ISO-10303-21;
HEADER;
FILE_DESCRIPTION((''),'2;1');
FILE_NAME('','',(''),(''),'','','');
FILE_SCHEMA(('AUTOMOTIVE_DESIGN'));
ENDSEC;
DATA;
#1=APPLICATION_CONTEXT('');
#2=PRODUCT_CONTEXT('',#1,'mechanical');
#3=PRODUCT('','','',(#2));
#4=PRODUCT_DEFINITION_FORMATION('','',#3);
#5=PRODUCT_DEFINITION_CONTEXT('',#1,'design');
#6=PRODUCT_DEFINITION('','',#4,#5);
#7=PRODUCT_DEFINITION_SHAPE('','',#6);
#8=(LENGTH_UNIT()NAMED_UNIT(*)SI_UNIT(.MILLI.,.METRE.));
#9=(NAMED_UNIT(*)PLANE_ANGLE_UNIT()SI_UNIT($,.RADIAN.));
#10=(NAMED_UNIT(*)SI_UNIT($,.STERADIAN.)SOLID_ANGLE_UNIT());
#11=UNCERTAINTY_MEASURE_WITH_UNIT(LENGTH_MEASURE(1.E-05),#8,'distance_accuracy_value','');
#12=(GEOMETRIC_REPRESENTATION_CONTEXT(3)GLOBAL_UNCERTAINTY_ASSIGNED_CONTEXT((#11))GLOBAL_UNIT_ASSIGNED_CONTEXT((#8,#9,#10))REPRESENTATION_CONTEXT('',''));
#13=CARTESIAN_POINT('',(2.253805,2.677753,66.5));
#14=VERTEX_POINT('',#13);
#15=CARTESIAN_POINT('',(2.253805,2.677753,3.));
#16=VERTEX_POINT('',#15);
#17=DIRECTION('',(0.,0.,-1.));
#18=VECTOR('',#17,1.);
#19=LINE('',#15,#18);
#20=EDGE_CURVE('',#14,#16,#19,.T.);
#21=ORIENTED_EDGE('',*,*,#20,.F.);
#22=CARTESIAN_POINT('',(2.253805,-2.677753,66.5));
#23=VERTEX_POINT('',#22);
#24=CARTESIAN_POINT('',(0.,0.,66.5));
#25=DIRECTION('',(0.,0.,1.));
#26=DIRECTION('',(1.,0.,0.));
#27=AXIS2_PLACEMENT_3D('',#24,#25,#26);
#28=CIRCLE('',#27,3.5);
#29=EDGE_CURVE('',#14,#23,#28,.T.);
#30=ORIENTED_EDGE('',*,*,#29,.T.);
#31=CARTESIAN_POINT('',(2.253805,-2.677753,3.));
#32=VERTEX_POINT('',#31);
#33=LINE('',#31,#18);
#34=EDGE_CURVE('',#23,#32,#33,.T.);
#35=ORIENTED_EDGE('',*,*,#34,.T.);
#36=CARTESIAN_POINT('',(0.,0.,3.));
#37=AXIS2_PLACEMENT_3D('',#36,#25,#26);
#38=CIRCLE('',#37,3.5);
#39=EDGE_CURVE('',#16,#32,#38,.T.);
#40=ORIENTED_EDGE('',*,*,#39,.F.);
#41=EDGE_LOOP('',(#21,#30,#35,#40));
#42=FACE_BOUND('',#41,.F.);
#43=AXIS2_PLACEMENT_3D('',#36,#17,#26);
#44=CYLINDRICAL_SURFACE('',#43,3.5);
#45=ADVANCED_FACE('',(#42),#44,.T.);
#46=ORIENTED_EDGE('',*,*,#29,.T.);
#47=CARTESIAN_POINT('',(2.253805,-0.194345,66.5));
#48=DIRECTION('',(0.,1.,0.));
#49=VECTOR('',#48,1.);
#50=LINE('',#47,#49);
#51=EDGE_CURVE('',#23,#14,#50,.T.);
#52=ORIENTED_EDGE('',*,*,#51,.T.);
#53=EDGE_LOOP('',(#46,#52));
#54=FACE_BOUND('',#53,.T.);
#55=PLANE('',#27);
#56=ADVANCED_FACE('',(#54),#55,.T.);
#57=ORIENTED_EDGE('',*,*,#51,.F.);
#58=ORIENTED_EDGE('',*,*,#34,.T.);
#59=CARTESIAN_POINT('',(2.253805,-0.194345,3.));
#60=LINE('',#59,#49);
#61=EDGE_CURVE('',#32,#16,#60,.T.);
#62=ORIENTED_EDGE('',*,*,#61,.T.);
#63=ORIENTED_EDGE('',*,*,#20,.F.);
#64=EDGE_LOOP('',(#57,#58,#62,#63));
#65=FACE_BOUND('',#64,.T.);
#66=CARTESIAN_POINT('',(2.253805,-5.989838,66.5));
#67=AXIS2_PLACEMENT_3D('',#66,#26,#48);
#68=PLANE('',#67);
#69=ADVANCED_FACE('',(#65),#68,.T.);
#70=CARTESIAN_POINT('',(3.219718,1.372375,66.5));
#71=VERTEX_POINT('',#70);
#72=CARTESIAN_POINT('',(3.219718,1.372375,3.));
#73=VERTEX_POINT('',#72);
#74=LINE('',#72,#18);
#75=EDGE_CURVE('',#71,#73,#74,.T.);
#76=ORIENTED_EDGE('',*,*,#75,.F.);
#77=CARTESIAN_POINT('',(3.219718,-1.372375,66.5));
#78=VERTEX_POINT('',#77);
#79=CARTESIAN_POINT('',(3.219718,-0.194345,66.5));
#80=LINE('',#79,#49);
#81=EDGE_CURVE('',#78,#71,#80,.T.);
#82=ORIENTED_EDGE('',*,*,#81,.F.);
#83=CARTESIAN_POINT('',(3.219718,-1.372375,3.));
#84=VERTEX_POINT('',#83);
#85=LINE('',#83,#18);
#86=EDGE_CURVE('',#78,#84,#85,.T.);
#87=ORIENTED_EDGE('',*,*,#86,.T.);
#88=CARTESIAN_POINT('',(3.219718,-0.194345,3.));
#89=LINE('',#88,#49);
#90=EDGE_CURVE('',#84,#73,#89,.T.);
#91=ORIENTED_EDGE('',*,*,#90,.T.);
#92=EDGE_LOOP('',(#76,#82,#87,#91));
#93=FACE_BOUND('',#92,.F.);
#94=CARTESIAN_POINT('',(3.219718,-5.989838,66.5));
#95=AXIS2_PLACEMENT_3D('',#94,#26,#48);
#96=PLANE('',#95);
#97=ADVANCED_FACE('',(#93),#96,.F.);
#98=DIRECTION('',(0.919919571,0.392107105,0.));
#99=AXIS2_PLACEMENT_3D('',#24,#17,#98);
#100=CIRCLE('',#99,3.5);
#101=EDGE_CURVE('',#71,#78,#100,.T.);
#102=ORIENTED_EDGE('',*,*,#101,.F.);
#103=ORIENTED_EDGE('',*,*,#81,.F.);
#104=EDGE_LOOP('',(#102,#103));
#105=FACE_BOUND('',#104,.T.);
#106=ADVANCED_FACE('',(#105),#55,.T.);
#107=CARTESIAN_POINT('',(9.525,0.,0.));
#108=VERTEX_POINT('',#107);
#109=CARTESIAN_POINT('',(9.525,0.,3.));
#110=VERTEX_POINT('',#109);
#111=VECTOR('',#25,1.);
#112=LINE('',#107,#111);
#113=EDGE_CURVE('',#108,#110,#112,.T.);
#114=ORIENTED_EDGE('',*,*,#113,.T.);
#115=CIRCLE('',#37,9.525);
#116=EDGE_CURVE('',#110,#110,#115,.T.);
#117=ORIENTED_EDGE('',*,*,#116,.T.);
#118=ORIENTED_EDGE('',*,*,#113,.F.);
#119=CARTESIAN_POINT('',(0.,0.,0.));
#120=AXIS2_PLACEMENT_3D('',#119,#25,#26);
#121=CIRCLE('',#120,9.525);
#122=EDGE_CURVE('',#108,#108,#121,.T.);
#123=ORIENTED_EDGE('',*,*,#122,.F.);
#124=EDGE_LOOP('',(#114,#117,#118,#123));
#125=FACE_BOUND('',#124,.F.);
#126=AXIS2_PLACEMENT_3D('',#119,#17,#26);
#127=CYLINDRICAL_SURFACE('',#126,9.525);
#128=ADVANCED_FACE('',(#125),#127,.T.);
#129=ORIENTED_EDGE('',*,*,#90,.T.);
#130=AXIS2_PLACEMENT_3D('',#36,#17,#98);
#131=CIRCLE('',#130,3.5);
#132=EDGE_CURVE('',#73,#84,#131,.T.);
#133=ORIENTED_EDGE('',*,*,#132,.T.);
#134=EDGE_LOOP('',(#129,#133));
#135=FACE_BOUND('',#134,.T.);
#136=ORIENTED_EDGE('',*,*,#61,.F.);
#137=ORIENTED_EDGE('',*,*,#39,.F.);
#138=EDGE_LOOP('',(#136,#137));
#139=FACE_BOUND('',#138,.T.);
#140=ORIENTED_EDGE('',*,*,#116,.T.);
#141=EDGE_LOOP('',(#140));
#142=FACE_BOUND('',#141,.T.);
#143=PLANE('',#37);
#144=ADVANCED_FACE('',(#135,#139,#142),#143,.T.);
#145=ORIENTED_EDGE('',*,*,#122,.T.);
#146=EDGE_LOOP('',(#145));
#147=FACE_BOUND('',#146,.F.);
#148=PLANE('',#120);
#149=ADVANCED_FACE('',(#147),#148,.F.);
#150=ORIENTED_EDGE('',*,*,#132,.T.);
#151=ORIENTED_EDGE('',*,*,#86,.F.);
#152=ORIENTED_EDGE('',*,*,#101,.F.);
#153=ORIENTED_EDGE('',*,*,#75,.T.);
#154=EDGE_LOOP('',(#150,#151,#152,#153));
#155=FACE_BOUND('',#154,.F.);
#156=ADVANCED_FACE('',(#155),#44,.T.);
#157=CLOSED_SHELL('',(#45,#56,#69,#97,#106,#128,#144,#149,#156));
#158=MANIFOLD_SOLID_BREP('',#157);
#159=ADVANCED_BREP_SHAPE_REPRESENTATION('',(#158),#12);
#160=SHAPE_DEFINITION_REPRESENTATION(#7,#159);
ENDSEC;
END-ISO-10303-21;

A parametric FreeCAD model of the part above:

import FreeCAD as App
import Part
import Sketcher

V = App.Vector
Q = App.Units.Quantity


def add_polygon(sketch, points):
    """Adds a closed chain of lines whose ends are joined by coincident constraints."""
    first, n = sketch.GeometryCount, len(points)
    for a, b in zip(points, points[1:] + points[:1]):
        sketch.addGeometry(Part.LineSegment(App.Vector(*a, 0), App.Vector(*b, 0)), False)
    for i in range(n):
        sketch.addConstraint(Sketcher.Constraint("Coincident", first + i, 2, first + (i + 1) % n, 1))

doc = App.newDocument("Part")
body = doc.addObject("PartDesign::Body", "Body")

sketch1 = body.newObject("Sketcher::SketchObject", "Sketch")
sketch1.AttachmentSupport = (doc.getObject("XY_Plane"), [""])
sketch1.MapMode = "FlatFace"
sketch1.addGeometry(Part.Circle(V(0, 0, 0), V(0, 0, 1), 9.525), False)
sketch1.addConstraint([
    Sketcher.Constraint("Coincident", 0, 3, -1, 1),
    Sketcher.Constraint("Diameter", 0, Q("19.05 mm")),
])
pad1 = body.newObject("PartDesign::Pad", "Pad")
pad1.Profile = sketch1
pad1.Length = 3

sketch2 = body.newObject("Sketcher::SketchObject", "Sketch001")
sketch2.AttachmentSupport = (doc.getObject("XY_Plane"), [""])
sketch2.MapMode = "FlatFace"
sketch2.AttachmentOffset = App.Placement(V(0, 0, 3), App.Rotation())
sketch2.addGeometry(Part.Circle(V(0, 0, 0), V(0, 0, 1), 3.5), False)
sketch2.addConstraint([
    Sketcher.Constraint("Coincident", 0, 3, -1, 1),
    Sketcher.Constraint("Diameter", 0, Q("7 mm")),
])
pad2 = body.newObject("PartDesign::Pad", "Pad001")
pad2.Profile = sketch2
pad2.Length = 63.5

sketch3 = body.newObject("Sketcher::SketchObject", "Sketch002")
sketch3.AttachmentSupport = (doc.getObject("XY_Plane"), [""])
sketch3.MapMode = "FlatFace"
sketch3.AttachmentOffset = App.Placement(V(0, 0, 66.5), App.Rotation())
add_polygon(sketch3, [(2.253805, 5.601147), (2.253805, -5.989838), (3.219718, -5.989838), (3.219718, 5.601147)])
sketch3.addConstraint([
    Sketcher.Constraint("Vertical", 0),
    Sketcher.Constraint("Horizontal", 1),
    Sketcher.Constraint("Vertical", 2),
    Sketcher.Constraint("Horizontal", 3),
    Sketcher.Constraint("DistanceX", 1, 1, 1, 2, Q("0.965913 mm")),
    Sketcher.Constraint("DistanceY", 0, 2, 0, 1, Q("11.590985 mm")),
    Sketcher.Constraint("DistanceX", -1, 1, 1, 2, Q("3.219718 mm")),
    Sketcher.Constraint("DistanceY", 0, 2, -1, 1, Q("5.989838 mm")),
])
pocket1 = body.newObject("PartDesign::Pocket", "Pocket")
pocket1.Profile = sketch3
pocket1.Length = 63.5

doc.recompute()
